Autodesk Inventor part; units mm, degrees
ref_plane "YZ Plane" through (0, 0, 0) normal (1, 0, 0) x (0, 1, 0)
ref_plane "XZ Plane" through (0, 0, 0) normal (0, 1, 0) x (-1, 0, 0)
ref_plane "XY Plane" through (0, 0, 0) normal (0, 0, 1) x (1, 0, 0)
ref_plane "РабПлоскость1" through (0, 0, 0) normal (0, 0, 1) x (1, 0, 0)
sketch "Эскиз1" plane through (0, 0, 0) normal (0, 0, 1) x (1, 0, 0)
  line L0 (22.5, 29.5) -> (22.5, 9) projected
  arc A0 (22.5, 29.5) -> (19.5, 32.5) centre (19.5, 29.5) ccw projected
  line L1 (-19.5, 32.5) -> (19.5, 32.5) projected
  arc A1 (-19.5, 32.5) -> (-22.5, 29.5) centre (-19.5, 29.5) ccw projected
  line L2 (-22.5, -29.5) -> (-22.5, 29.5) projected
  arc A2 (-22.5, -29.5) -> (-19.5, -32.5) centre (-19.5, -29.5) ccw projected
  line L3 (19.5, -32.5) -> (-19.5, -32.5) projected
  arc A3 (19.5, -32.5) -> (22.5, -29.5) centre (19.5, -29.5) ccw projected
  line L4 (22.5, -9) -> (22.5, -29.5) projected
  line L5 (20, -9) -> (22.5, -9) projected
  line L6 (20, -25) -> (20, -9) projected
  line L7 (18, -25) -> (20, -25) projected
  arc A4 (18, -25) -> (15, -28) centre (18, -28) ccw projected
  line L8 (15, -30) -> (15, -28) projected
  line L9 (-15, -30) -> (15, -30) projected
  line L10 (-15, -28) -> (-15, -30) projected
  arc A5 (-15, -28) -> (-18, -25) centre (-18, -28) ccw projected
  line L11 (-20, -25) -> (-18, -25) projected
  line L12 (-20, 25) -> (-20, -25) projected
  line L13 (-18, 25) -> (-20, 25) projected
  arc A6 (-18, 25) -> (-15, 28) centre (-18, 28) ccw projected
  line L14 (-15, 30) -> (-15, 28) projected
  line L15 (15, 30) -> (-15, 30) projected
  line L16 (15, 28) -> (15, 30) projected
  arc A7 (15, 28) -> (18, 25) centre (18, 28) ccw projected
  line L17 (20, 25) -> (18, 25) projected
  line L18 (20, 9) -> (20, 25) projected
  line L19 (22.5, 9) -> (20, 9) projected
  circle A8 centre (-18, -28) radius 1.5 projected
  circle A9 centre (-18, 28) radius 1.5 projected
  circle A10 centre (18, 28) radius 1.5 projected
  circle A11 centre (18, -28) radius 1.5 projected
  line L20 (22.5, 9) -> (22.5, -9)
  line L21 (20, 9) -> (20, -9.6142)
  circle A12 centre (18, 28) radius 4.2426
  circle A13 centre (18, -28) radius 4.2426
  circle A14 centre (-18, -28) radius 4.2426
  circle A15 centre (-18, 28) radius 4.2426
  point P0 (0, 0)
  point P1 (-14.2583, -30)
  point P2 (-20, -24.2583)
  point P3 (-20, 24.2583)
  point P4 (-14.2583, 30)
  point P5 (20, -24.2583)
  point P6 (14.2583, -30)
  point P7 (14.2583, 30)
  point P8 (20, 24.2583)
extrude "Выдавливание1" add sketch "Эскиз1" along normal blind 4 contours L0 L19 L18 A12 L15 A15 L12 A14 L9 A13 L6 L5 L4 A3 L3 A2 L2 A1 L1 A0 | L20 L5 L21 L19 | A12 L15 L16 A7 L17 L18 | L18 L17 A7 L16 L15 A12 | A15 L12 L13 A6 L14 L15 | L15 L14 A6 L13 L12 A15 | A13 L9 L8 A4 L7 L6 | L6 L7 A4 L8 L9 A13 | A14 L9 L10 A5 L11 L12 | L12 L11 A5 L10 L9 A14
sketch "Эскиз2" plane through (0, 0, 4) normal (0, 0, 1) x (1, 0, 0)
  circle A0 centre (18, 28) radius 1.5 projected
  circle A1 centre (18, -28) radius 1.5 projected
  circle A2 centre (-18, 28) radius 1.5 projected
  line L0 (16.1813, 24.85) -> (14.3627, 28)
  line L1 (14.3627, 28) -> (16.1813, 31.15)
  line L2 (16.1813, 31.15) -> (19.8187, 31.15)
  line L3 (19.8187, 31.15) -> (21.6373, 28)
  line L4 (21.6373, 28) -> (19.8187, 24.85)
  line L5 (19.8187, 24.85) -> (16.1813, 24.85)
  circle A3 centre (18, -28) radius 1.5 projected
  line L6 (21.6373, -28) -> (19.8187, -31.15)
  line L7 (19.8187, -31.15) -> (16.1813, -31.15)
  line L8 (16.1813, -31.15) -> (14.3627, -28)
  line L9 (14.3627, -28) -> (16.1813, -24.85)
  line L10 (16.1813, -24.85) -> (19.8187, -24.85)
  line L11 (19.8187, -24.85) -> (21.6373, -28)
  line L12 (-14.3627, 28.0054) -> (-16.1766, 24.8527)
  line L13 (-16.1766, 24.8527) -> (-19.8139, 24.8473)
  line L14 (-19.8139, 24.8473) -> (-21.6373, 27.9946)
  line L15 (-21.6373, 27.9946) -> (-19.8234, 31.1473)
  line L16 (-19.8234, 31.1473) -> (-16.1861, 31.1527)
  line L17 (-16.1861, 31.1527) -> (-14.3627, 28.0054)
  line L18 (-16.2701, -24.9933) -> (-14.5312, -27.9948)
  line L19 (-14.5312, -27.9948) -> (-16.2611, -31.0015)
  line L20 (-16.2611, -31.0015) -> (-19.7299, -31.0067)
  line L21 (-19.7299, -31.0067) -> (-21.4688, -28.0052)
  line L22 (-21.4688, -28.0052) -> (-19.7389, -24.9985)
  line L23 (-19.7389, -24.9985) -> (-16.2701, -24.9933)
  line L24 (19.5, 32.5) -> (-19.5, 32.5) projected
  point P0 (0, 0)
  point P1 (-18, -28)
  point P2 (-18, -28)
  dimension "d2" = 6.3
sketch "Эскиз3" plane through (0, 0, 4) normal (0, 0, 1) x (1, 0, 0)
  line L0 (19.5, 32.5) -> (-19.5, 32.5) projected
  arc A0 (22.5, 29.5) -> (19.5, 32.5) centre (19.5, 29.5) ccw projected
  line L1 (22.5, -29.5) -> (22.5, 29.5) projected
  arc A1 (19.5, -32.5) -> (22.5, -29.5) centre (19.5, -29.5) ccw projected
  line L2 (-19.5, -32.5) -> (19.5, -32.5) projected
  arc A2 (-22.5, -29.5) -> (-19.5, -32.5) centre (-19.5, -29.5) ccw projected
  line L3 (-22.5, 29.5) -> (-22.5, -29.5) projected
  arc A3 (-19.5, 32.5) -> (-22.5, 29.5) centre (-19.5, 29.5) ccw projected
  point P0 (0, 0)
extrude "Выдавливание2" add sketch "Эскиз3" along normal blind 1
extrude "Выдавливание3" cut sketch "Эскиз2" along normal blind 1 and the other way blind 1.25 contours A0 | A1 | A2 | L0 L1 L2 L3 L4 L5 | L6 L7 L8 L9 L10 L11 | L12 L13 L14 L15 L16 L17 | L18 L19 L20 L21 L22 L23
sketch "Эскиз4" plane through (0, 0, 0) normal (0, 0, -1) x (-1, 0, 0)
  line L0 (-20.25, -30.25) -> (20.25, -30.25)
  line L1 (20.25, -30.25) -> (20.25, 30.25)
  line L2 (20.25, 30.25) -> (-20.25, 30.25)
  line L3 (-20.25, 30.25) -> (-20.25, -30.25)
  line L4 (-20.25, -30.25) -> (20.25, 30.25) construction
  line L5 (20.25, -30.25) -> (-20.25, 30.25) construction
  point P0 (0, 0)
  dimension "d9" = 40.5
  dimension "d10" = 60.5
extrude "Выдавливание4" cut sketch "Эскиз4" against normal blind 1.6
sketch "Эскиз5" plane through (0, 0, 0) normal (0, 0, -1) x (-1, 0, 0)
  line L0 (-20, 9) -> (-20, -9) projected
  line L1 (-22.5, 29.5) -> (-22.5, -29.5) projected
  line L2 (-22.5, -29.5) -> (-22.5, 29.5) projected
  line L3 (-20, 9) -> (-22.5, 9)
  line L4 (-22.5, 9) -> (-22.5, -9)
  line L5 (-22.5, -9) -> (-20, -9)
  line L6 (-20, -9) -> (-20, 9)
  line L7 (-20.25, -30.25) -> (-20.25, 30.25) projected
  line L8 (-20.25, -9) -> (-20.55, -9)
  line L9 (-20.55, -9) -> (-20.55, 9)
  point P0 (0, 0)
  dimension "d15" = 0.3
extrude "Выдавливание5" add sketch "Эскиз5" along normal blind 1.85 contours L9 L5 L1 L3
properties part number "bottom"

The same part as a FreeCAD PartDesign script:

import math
import FreeCAD as App
import Part
import Sketcher

V = App.Vector
Q = App.Units.Quantity

doc = App.newDocument("Part")
body = doc.addObject("PartDesign::Body", "Body")

# Sketch on XY plane
sketch1 = body.newObject("Sketcher::SketchObject", "Sketch")
sketch1.AttachmentSupport = (doc.getObject("XY_Plane"), [""])
sketch1.MapMode = "FlatFace"
sketch1.addGeometry([
    Part.ArcOfCircle(Part.Circle(V(19.5, 29.5, 0), V(0, 0, 1), 3), math.radians(0), math.radians(90)),  # 0
    Part.LineSegment(V(19.5, 32.5, 0), V(-19.5, 32.5, 0)),  # 1
    Part.ArcOfCircle(Part.Circle(V(-19.5, 29.5, 0), V(0, 0, 1), 3), math.radians(90), math.radians(180)),  # 2
    Part.LineSegment(V(-22.5, 29.5, 0), V(-22.5, -29.5, 0)),  # 3
    Part.ArcOfCircle(Part.Circle(V(-19.5, -29.5, 0), V(0, 0, 1), 3), math.radians(180), math.radians(270)),  # 4
    Part.LineSegment(V(-19.5, -32.5, 0), V(19.5, -32.5, 0)),  # 5
    Part.ArcOfCircle(Part.Circle(V(19.5, -29.5, 0), V(0, 0, 1), 3), math.radians(-90), math.radians(0)),  # 6
    Part.LineSegment(V(22.5, -29.5, 0), V(22.5, 29.5, 0)),  # 7
    Part.LineSegment(V(20, 24.3, 0), V(20, -24.3, 0)),  # 8
    Part.ArcOfCircle(Part.Circle(V(18, -28, 0), V(0, 0, 1), 4.2), math.radians(62), math.radians(208)),  # 9
    Part.LineSegment(V(14.3, -30, 0), V(-14.3, -30, 0)),  # 10
    Part.ArcOfCircle(Part.Circle(V(-18, -28, 0), V(0, 0, 1), 4.2), math.radians(-28), math.radians(118)),  # 11
    Part.LineSegment(V(-20, -24.3, 0), V(-20, 24.3, 0)),  # 12
    Part.ArcOfCircle(Part.Circle(V(-18, 28, 0), V(0, 0, 1), 4.2), math.radians(-118), math.radians(28)),  # 13
    Part.LineSegment(V(-14.3, 30, 0), V(14.3, 30, 0)),  # 14
    Part.ArcOfCircle(Part.Circle(V(18, 28, 0), V(0, 0, 1), 4.2), math.radians(152), math.radians(298)),  # 15
    Part.Circle(V(18, 28, 0), V(0, 0, 1), 1.5),  # 16
    Part.Circle(V(-18, 28, 0), V(0, 0, 1), 1.5),  # 17
    Part.Circle(V(-18, -28, 0), V(0, 0, 1), 1.5),  # 18
    Part.Circle(V(18, -28, 0), V(0, 0, 1), 1.5),  # 19
], False)
sketch1.addConstraint([
    Sketcher.Constraint("Tangent", 0, 2, 1, 1),
    Sketcher.Constraint("Tangent", 1, 2, 2, 1),
    Sketcher.Constraint("Tangent", 2, 2, 3, 1),
    Sketcher.Constraint("Tangent", 3, 2, 4, 1),
    Sketcher.Constraint("Tangent", 4, 2, 5, 1),
    Sketcher.Constraint("Tangent", 5, 2, 6, 1),
    Sketcher.Constraint("Tangent", 6, 2, 7, 1),
    Sketcher.Constraint("Tangent", 7, 2, 0, 1),
    Sketcher.Constraint("Coincident", 8, 2, 9, 1),
    Sketcher.Constraint("Coincident", 9, 2, 10, 1),
    Sketcher.Constraint("Coincident", 10, 2, 11, 1),
    Sketcher.Constraint("Coincident", 11, 2, 12, 1),
    Sketcher.Constraint("Coincident", 12, 2, 13, 1),
    Sketcher.Constraint("Coincident", 13, 2, 14, 1),
    Sketcher.Constraint("Coincident", 14, 2, 15, 1),
    Sketcher.Constraint("Coincident", 15, 2, 8, 1),
    Sketcher.Constraint("Horizontal", 1),
    Sketcher.Constraint("Vertical", 3),
    Sketcher.Constraint("Horizontal", 5),
    Sketcher.Constraint("Vertical", 7),
    Sketcher.Constraint("Vertical", 8),
    Sketcher.Constraint("Horizontal", 10),
    Sketcher.Constraint("Vertical", 12),
    Sketcher.Constraint("Horizontal", 14),
    Sketcher.Constraint("Coincident", 16, 3, 15, 3),
    Sketcher.Constraint("Coincident", 17, 3, 13, 3),
    Sketcher.Constraint("Coincident", 18, 3, 11, 3),
    Sketcher.Constraint("Coincident", 19, 3, 9, 3),
    Sketcher.Constraint("Equal", 0, 2),
    Sketcher.Constraint("Equal", 2, 4),
    Sketcher.Constraint("Equal", 4, 6),
    Sketcher.Constraint("Equal", 9, 11),
    Sketcher.Constraint("Equal", 11, 13),
    Sketcher.Constraint("Equal", 13, 15),
    Sketcher.Constraint("Equal", 16, 17),
    Sketcher.Constraint("Equal", 17, 18),
    Sketcher.Constraint("Equal", 18, 19),
    Sketcher.Constraint("Symmetric", 0, 3, 4, 3, -1, 1),
    Sketcher.Constraint("Symmetric", 9, 3, 13, 3, -1, 1),
    Sketcher.Constraint("Symmetric", 11, 3, 15, 3, -1, 1),
    Sketcher.Constraint("Symmetric", 9, 3, 11, 3, -2),
    Sketcher.Constraint("Horizontal", 8, 2, 11, 2),
    Sketcher.Constraint("Vertical", 10, 2, 13, 2),
    Sketcher.Constraint("Diameter", 16, 3.0),
    Sketcher.Constraint("Radius", 0, 3.0),
    Sketcher.Constraint("DistanceX", 1, 2, 1, 1, 39.0),
    Sketcher.Constraint("DistanceY", 3, 2, 3, 1, 59.0),
    Sketcher.Constraint("DistanceX", -1, 1, 9, 3, 18.0),
    Sketcher.Constraint("DistanceY", 9, 3, -1, 1, 28.0),
    Sketcher.Constraint("DistanceX", -1, 1, 8, 2, 20.0),
    Sketcher.Constraint("DistanceY", 9, 2, -1, 1, 30.0),
    Sketcher.Constraint("Radius", 9, 4.2426),
])
pad1 = body.newObject("PartDesign::Pad", "Pad")
pad1.Profile = sketch1
pad1.Length = 4

# Sketch on XY plane
sketch2 = body.newObject("Sketcher::SketchObject", "Sketch001")
sketch2.AttachmentSupport = (doc.getObject("XY_Plane"), [""])
sketch2.MapMode = "FlatFace"
sketch2.AttachmentOffset = App.Placement(V(0, 0, 4), App.Rotation())
sketch2.addGeometry([
    Part.ArcOfCircle(Part.Circle(V(19.5, 29.5, 0), V(0, 0, 1), 3), math.radians(0), math.radians(90)),  # 0
    Part.LineSegment(V(19.5, 32.5, 0), V(-19.5, 32.5, 0)),  # 1
    Part.ArcOfCircle(Part.Circle(V(-19.5, 29.5, 0), V(0, 0, 1), 3), math.radians(90), math.radians(180)),  # 2
    Part.LineSegment(V(-22.5, 29.5, 0), V(-22.5, -29.5, 0)),  # 3
    Part.ArcOfCircle(Part.Circle(V(-19.5, -29.5, 0), V(0, 0, 1), 3), math.radians(180), math.radians(270)),  # 4
    Part.LineSegment(V(-19.5, -32.5, 0), V(19.5, -32.5, 0)),  # 5
    Part.ArcOfCircle(Part.Circle(V(19.5, -29.5, 0), V(0, 0, 1), 3), math.radians(-90), math.radians(0)),  # 6
    Part.LineSegment(V(22.5, -29.5, 0), V(22.5, 29.5, 0)),  # 7
], False)
sketch2.addConstraint([
    Sketcher.Constraint("Tangent", 0, 2, 1, 1),
    Sketcher.Constraint("Tangent", 1, 2, 2, 1),
    Sketcher.Constraint("Tangent", 2, 2, 3, 1),
    Sketcher.Constraint("Tangent", 3, 2, 4, 1),
    Sketcher.Constraint("Tangent", 4, 2, 5, 1),
    Sketcher.Constraint("Tangent", 5, 2, 6, 1),
    Sketcher.Constraint("Tangent", 6, 2, 7, 1),
    Sketcher.Constraint("Tangent", 7, 2, 0, 1),
    Sketcher.Constraint("Horizontal", 1),
    Sketcher.Constraint("Vertical", 3),
    Sketcher.Constraint("Horizontal", 5),
    Sketcher.Constraint("Vertical", 7),
    Sketcher.Constraint("Equal", 0, 2),
    Sketcher.Constraint("Equal", 2, 4),
    Sketcher.Constraint("Equal", 4, 6),
    Sketcher.Constraint("Symmetric", 0, 3, 4, 3, -1, 1),
    Sketcher.Constraint("Radius", 0, 3.0),
    Sketcher.Constraint("DistanceX", 1, 2, 1, 1, 39.0),
    Sketcher.Constraint("DistanceY", 3, 2, 3, 1, 59.0),
])
pad2 = body.newObject("PartDesign::Pad", "Pad001")
pad2.Profile = sketch2
pad2.Length = 1

# Sketch on XY plane
sketch3 = body.newObject("Sketcher::SketchObject", "Sketch002")
sketch3.AttachmentSupport = (doc.getObject("XY_Plane"), [""])
sketch3.MapMode = "FlatFace"
sketch3.AttachmentOffset = App.Placement(V(0, 0, 4), App.Rotation())
sketch3.addGeometry([
    Part.LineSegment(V(14.4, 28, 0), V(16.2, 24.9, 0)),  # 0
    Part.LineSegment(V(16.2, 24.9, 0), V(19.8, 24.9, 0)),  # 1
    Part.LineSegment(V(19.8, 24.9, 0), V(21.6, 28, 0)),  # 2
    Part.LineSegment(V(21.6, 28, 0), V(19.8, 31.1, 0)),  # 3
    Part.LineSegment(V(19.8, 31.1, 0), V(16.2, 31.1, 0)),  # 4
    Part.LineSegment(V(16.2, 31.1, 0), V(14.4, 28, 0)),  # 5
    Part.LineSegment(V(19.8, -31.1, 0), V(21.6, -28, 0)),  # 6
    Part.LineSegment(V(21.6, -28, 0), V(19.8, -24.9, 0)),  # 7
    Part.LineSegment(V(19.8, -24.9, 0), V(16.2, -24.9, 0)),  # 8
    Part.LineSegment(V(16.2, -24.9, 0), V(14.4, -28, 0)),  # 9
    Part.LineSegment(V(14.4, -28, 0), V(16.2, -31.1, 0)),  # 10
    Part.LineSegment(V(16.2, -31.1, 0), V(19.8, -31.1, 0)),  # 11
    Part.LineSegment(V(-16.2, 24.9, 0), V(-14.4, 28, 0)),  # 12
    Part.LineSegment(V(-14.4, 28, 0), V(-16.2, 31.2, 0)),  # 13
    Part.LineSegment(V(-16.2, 31.2, 0), V(-19.8, 31.1, 0)),  # 14
    Part.LineSegment(V(-19.8, 31.1, 0), V(-21.6, 28, 0)),  # 15
    Part.LineSegment(V(-21.6, 28, 0), V(-19.8, 24.8, 0)),  # 16
    Part.LineSegment(V(-19.8, 24.8, 0), V(-16.2, 24.9, 0)),  # 17
    Part.LineSegment(V(-14.5, -28, 0), V(-16.3, -25, 0)),  # 18
    Part.LineSegment(V(-16.3, -25, 0), V(-19.7, -25, 0)),  # 19
    Part.LineSegment(V(-19.7, -25, 0), V(-21.5, -28, 0)),  # 20
    Part.LineSegment(V(-21.5, -28, 0), V(-19.7, -31, 0)),  # 21
    Part.LineSegment(V(-19.7, -31, 0), V(-16.3, -31, 0)),  # 22
    Part.LineSegment(V(-16.3, -31, 0), V(-14.5, -28, 0)),  # 23
], False)
sketch3.addConstraint([
    Sketcher.Constraint("Coincident", 0, 2, 1, 1),
    Sketcher.Constraint("Coincident", 1, 2, 2, 1),
    Sketcher.Constraint("Coincident", 2, 2, 3, 1),
    Sketcher.Constraint("Coincident", 3, 2, 4, 1),
    Sketcher.Constraint("Coincident", 4, 2, 5, 1),
    Sketcher.Constraint("Coincident", 5, 2, 0, 1),
    Sketcher.Constraint("Coincident", 6, 2, 7, 1),
    Sketcher.Constraint("Coincident", 7, 2, 8, 1),
    Sketcher.Constraint("Coincident", 8, 2, 9, 1),
    Sketcher.Constraint("Coincident", 9, 2, 10, 1),
    Sketcher.Constraint("Coincident", 10, 2, 11, 1),
    Sketcher.Constraint("Coincident", 11, 2, 6, 1),
    Sketcher.Constraint("Coincident", 12, 2, 13, 1),
    Sketcher.Constraint("Coincident", 13, 2, 14, 1),
    Sketcher.Constraint("Coincident", 14, 2, 15, 1),
    Sketcher.Constraint("Coincident", 15, 2, 16, 1),
    Sketcher.Constraint("Coincident", 16, 2, 17, 1),
    Sketcher.Constraint("Coincident", 17, 2, 12, 1),
    Sketcher.Constraint("Coincident", 18, 2, 19, 1),
    Sketcher.Constraint("Coincident", 19, 2, 20, 1),
    Sketcher.Constraint("Coincident", 20, 2, 21, 1),
    Sketcher.Constraint("Coincident", 21, 2, 22, 1),
    Sketcher.Constraint("Coincident", 22, 2, 23, 1),
    Sketcher.Constraint("Coincident", 23, 2, 18, 1),
    Sketcher.Constraint("Horizontal", 1),
    Sketcher.Constraint("Horizontal", 4),
    Sketcher.Constraint("Horizontal", 8),
    Sketcher.Constraint("Horizontal", 11),
    Sketcher.Constraint("Symmetric", 2, 2, 6, 2, -1),
    Sketcher.Constraint("Symmetric", 1, 2, 7, 2, -1),
    Sketcher.Constraint("Symmetric", 5, 2, 9, 2, -1),
    Sketcher.Constraint("Symmetric", 4, 2, 10, 2, -1),
    Sketcher.Constraint("Parallel", 0, 3),
    Sketcher.Constraint("Parallel", 2, 5),
    Sketcher.Constraint("Parallel", 5, 6),
    Sketcher.Constraint("Parallel", 3, 7),
    Sketcher.Constraint("Parallel", 6, 9),
    Sketcher.Constraint("Parallel", 12, 15),
    Sketcher.Constraint("Parallel", 13, 16),
    Sketcher.Constraint("Parallel", 14, 17),
    Sketcher.Constraint("Parallel", 16, 18),
    Sketcher.Constraint("Parallel", 17, 19),
    Sketcher.Constraint("Parallel", 15, 20),
    Sketcher.Constraint("Parallel", 18, 21),
    Sketcher.Constraint("Parallel", 19, 22),
    Sketcher.Constraint("Parallel", 20, 23),
    Sketcher.Constraint("Horizontal", 2, 2, 5, 2),
    Sketcher.Constraint("Vertical", 1, 2, 3, 2),
    Sketcher.Constraint("Equal", 10, 12),
    Sketcher.Constraint("Equal", 12, 13),
    Sketcher.Constraint("Equal", 13, 14),
    Sketcher.Constraint("Equal", 14, 15),
    Sketcher.Constraint("Equal", 18, 19),
    Sketcher.Constraint("Equal", 19, 20),
    Sketcher.Constraint("Equal", 20, 21),
    Sketcher.Constraint("DistanceY", 1, 2, 3, 2, 6.3),
    Sketcher.Constraint("DistanceY", 16, 2, 14, 2, 6.3),
    Sketcher.Constraint("Angle", 0, Q("-60.0007 deg")),
    Sketcher.Constraint("DistanceY", -1, 1, 2, 2, 28.0),
    Sketcher.Constraint("DistanceX", 15, 2, 5, 2, 36.0),
    Sketcher.Constraint("DistanceX", 18, 2, -1, 1, 16.27),
    Sketcher.Constraint("DistanceX", 21, 2, -1, 1, 19.73),
    Sketcher.Constraint("DistanceX", 20, 2, 10, 2, 37.65),
    Sketcher.Constraint("DistanceX", 1, 1, 1, 2, 3.6374),
    Sketcher.Constraint("DistanceX", 13, 2, -1, 1, 16.186),
    Sketcher.Constraint("DistanceY", 12, 2, 14, 2, 3.142),
    Sketcher.Constraint("DistanceY", -1, 1, 12, 2, 28.0054),
    Sketcher.Constraint("DistanceY", 18, 2, -1, 1, 24.9933),
])
pocket1 = body.newObject("PartDesign::Pocket", "Pocket")
pocket1.Profile = sketch3
pocket1.Type = "TwoLengths"
pocket1.Length = 1
pocket1.Length2 = 1.25
pocket1.Reversed = True

# Sketch on XY plane
sketch4 = body.newObject("Sketcher::SketchObject", "Sketch003")
sketch4.AttachmentSupport = (doc.getObject("XY_Plane"), [""])
sketch4.MapMode = "FlatFace"
sketch4.addGeometry([
    Part.LineSegment(V(20, 30, 0), V(20, -30, 0)),
    Part.LineSegment(V(20, -30, 0), V(-20, -30, 0)),
    Part.LineSegment(V(-20, -30, 0), V(-20, 30, 0)),
    Part.LineSegment(V(-20, 30, 0), V(20, 30, 0)),
], False)
sketch4.addConstraint([
    Sketcher.Constraint("Coincident", 0, 2, 1, 1),
    Sketcher.Constraint("Coincident", 1, 2, 2, 1),
    Sketcher.Constraint("Coincident", 2, 2, 3, 1),
    Sketcher.Constraint("Coincident", 3, 2, 0, 1),
    Sketcher.Constraint("Vertical", 0),
    Sketcher.Constraint("Horizontal", 1),
    Sketcher.Constraint("Vertical", 2),
    Sketcher.Constraint("Horizontal", 3),
    Sketcher.Constraint("Symmetric", 0, 2, 2, 2, -1, 1),
    Sketcher.Constraint("DistanceX", 1, 2, 1, 1, 40.5),
    Sketcher.Constraint("DistanceY", 0, 2, 0, 1, 60.5),
])
pocket2 = body.newObject("PartDesign::Pocket", "Pocket001")
pocket2.Profile = sketch4
pocket2.Length = 1.6
pocket2.Reversed = True

# Sketch on XY plane
sketch5 = body.newObject("Sketcher::SketchObject", "Sketch004")
sketch5.AttachmentSupport = (doc.getObject("XY_Plane"), [""])
sketch5.MapMode = "FlatFace"
sketch5.addGeometry([
    Part.LineSegment(V(20.6, -9, 0), V(20.6, 9, 0)),
    Part.LineSegment(V(20.6, 9, 0), V(22.5, 9, 0)),
    Part.LineSegment(V(22.5, 9, 0), V(22.5, -9, 0)),
    Part.LineSegment(V(22.5, -9, 0), V(20.6, -9, 0)),
], False)
sketch5.addConstraint([
    Sketcher.Constraint("Coincident", 0, 2, 1, 1),
    Sketcher.Constraint("Coincident", 1, 2, 2, 1),
    Sketcher.Constraint("Coincident", 2, 2, 3, 1),
    Sketcher.Constraint("Coincident", 3, 2, 0, 1),
    Sketcher.Constraint("Vertical", 0),
    Sketcher.Constraint("Horizontal", 1),
    Sketcher.Constraint("Vertical", 2),
    Sketcher.Constraint("Horizontal", 3),
    Sketcher.Constraint("DistanceY", 0, 1, 0, 2, 18.0),
    Sketcher.Constraint("DistanceY", -1, 1, 0, 2, 9.0),
    Sketcher.Constraint("DistanceX", 1, 1, 1, 2, 1.95),
    Sketcher.Constraint("DistanceX", -1, 1, 1, 2, 22.5),
])
pad3 = body.newObject("PartDesign::Pad", "Pad002")
pad3.Profile = sketch5
pad3.Length = 1.85
pad3.Reversed = True

doc.recompute()
